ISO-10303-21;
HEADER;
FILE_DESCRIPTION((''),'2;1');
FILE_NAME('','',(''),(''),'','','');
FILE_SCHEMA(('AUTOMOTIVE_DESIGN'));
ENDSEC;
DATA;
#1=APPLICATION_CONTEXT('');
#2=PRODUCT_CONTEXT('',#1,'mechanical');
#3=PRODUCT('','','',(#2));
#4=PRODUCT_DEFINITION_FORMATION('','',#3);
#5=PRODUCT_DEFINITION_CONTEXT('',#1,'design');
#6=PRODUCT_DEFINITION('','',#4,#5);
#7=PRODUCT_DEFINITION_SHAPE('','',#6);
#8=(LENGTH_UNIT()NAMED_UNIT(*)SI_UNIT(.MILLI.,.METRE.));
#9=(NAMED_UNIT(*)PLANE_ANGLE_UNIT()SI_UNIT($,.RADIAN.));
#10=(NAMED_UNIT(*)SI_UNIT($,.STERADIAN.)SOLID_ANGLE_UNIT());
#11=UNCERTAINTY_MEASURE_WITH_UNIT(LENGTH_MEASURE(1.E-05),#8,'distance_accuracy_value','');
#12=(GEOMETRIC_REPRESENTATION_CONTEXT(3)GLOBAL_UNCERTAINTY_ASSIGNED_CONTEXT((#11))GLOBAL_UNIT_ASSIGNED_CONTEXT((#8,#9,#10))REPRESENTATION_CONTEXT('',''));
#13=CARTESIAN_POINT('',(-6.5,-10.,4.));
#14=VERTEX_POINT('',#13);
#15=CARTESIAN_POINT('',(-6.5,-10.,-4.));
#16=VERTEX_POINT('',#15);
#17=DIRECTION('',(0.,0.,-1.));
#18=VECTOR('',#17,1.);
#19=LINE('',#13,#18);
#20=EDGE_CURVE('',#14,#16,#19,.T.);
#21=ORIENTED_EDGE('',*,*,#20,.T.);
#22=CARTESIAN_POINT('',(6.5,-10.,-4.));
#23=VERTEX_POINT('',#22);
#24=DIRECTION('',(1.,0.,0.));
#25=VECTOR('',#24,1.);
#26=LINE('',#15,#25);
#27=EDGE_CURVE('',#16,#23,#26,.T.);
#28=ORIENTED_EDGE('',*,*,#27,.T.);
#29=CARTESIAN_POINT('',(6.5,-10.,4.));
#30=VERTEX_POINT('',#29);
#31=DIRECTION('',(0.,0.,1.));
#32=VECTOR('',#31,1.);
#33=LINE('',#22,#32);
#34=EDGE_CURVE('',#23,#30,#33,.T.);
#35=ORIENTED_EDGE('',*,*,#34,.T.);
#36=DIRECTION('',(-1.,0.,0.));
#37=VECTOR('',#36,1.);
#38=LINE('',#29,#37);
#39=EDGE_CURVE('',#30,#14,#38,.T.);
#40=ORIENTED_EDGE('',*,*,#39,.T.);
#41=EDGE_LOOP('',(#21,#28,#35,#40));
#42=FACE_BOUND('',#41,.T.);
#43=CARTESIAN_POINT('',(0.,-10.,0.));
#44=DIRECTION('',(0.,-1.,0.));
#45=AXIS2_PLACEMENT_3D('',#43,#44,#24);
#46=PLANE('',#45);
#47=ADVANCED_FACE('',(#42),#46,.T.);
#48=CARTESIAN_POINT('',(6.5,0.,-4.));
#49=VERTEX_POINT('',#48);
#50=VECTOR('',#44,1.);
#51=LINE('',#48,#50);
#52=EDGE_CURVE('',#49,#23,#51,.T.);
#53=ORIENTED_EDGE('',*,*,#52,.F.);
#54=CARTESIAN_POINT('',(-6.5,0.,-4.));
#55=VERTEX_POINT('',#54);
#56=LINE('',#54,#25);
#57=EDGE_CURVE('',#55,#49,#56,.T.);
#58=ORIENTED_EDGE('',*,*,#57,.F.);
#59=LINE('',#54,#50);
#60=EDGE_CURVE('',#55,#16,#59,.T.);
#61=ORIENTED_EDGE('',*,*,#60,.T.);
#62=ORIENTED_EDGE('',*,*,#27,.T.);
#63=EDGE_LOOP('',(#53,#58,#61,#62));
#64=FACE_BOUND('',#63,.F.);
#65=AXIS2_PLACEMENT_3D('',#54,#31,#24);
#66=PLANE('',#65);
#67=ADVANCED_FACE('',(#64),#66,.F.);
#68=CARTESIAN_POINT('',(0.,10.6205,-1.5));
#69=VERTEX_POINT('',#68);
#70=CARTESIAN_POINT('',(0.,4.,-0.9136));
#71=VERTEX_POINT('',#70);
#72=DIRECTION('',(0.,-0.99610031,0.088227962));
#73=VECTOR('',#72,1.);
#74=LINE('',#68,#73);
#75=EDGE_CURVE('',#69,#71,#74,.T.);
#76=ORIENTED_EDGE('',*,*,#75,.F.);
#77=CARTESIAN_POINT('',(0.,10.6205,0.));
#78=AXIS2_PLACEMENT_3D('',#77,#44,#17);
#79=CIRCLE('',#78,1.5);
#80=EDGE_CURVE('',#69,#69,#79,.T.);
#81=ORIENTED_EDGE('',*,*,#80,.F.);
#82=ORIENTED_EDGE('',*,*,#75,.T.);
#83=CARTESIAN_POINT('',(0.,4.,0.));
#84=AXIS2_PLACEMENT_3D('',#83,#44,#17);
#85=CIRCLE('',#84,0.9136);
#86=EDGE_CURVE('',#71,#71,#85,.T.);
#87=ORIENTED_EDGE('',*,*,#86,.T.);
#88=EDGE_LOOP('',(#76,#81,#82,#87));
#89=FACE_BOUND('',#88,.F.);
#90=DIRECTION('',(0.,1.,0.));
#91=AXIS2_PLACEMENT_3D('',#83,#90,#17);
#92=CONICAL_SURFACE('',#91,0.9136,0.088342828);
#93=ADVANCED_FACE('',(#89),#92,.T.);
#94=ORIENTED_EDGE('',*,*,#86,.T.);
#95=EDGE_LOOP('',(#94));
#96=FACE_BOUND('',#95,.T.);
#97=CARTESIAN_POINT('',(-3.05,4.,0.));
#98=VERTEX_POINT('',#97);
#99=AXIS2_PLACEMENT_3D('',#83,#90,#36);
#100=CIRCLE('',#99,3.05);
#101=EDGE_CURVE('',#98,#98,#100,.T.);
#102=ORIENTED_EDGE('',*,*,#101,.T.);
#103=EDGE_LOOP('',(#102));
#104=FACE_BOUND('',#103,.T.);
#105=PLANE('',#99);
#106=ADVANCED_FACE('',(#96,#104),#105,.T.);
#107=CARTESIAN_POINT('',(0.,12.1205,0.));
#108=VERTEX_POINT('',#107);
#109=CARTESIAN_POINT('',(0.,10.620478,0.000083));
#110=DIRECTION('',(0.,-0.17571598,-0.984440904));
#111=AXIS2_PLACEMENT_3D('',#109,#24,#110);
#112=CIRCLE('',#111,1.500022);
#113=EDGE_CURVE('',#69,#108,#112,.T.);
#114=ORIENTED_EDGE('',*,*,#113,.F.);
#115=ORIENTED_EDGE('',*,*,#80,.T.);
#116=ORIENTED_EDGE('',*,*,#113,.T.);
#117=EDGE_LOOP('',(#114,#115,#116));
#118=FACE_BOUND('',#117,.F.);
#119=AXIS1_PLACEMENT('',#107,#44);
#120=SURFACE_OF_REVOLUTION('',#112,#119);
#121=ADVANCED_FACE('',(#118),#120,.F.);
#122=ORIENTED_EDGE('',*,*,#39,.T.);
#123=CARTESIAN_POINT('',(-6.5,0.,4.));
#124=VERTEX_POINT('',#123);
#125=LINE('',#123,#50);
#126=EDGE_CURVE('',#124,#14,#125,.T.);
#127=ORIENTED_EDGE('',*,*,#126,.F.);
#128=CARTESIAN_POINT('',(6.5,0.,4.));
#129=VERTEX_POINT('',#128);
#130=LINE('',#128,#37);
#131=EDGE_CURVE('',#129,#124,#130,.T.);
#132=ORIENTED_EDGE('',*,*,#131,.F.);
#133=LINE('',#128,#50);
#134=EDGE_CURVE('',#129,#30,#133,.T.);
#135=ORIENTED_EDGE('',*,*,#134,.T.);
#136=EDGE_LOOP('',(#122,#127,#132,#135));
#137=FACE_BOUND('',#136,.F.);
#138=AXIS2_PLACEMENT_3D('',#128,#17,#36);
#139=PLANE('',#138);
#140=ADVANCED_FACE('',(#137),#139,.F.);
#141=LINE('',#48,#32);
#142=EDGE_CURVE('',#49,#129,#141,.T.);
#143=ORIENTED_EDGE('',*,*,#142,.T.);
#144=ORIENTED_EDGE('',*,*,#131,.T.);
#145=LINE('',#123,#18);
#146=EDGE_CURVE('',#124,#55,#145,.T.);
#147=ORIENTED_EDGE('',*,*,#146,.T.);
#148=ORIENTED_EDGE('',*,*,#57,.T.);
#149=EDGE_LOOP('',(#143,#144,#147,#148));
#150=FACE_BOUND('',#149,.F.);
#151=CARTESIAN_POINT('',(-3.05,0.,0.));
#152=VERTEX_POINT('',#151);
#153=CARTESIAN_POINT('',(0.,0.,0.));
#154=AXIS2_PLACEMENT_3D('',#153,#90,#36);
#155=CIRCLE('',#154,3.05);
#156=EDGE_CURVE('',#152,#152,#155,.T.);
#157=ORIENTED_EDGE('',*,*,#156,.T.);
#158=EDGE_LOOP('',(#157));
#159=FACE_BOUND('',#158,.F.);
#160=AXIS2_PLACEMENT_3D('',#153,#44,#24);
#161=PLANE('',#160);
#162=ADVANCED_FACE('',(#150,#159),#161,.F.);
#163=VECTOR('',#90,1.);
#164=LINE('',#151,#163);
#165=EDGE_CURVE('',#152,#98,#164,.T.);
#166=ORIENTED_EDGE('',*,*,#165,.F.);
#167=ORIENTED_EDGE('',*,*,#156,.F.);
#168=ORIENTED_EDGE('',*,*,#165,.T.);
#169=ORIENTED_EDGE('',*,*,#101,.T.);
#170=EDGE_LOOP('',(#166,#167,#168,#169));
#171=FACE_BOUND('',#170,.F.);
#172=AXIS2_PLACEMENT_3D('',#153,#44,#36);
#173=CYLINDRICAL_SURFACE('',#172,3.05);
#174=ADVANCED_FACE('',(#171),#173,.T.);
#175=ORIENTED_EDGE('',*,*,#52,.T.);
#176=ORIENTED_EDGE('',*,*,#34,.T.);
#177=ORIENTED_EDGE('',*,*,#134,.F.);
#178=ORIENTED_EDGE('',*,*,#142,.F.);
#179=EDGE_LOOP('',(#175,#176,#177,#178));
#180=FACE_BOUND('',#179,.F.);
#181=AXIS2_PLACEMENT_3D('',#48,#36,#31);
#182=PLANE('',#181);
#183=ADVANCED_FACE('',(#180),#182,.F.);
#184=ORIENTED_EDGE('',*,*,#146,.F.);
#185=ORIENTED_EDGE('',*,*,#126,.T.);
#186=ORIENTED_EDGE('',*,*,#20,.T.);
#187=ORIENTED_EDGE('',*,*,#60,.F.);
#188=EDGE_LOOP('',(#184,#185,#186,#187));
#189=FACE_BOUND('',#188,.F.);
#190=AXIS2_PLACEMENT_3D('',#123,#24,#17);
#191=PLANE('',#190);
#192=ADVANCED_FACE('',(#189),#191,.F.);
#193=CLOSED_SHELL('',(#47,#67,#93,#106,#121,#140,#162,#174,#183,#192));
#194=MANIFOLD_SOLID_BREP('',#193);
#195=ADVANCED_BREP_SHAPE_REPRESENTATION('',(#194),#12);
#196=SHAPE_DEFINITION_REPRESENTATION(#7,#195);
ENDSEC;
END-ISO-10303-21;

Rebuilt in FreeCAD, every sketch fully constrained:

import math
import FreeCAD as App
import Part
import Sketcher
from FreeCAD import Vector
Q = App.Units.Quantity

doc = App.newDocument("Part")
body = doc.addObject("PartDesign::Body", "Body")

sketch1 = doc.addObject("Sketcher::SketchObject", "Sketch")
body.addObject(sketch1)
sketch1.AttachmentSupport = (doc.XZ_Plane, [""])
sketch1.MapMode = "FlatFace"
sketch1.addGeometry(Part.Circle(Vector(0, 0, 0), Vector(0, 0, 1), 3), False)
sketch1.addConstraint([
    Sketcher.Constraint("Coincident", 0, 3, -1, 1),
    Sketcher.Constraint("Diameter", 0, Q("6.1 mm")),
])
pad1 = doc.addObject("PartDesign::Pad", "Pad")
body.addObject(pad1)
pad1.Profile = sketch1
pad1.Length = 4
pad1.Reversed = True

sketch2 = doc.addObject("Sketcher::SketchObject", "Sketch001")
body.addObject(sketch2)
sketch2.AttachmentSupport = (doc.YZ_Plane, [""])
sketch2.MapMode = "FlatFace"
sketch2.addGeometry([
    Part.ArcOfCircle(Part.Circle(Vector(10.6, 0, 0), Vector(0, 0, 1), 1.5), math.radians(-90), math.radians(0)),
    Part.LineSegment(Vector(12.1, 0, 0), Vector(4, 0, 0)),
    Part.LineSegment(Vector(4, 0, 0), Vector(4, -0.9, 0)),
    Part.LineSegment(Vector(4, -0.9, 0), Vector(10.6, -1.5, 0)),
], False)
sketch2.addConstraint([
    Sketcher.Constraint("Coincident", 0, 2, 1, 1),
    Sketcher.Constraint("Coincident", 1, 2, 2, 1),
    Sketcher.Constraint("Coincident", 2, 2, 3, 1),
    Sketcher.Constraint("Coincident", 3, 2, 0, 1),
    Sketcher.Constraint("Horizontal", 1),
    Sketcher.Constraint("Vertical", 2),
    Sketcher.Constraint("PointOnObject", 0, 3, -1),
    Sketcher.Constraint("PointOnObject", 0, 2, -1),
    Sketcher.Constraint("Vertical", 0, 3, 3, 2),
    Sketcher.Constraint("Radius", 0, Q("1.5 mm")),
    Sketcher.Constraint("DistanceX", -1, 1, 1, 2, Q("4 mm")),
    Sketcher.Constraint("DistanceX", 1, 2, 1, 1, Q("8.1205 mm")),
    Sketcher.Constraint("DistanceY", 2, 2, 2, 1, Q("0.9136 mm")),
])
revolution = doc.addObject("PartDesign::Revolution", "Revolution")
body.addObject(revolution)
revolution.Profile = sketch2
revolution.ReferenceAxis = (sketch2, ["H_Axis"])
revolution.Angle = 360

sketch3 = doc.addObject("Sketcher::SketchObject", "Sketch002")
body.addObject(sketch3)
sketch3.AttachmentSupport = (doc.XZ_Plane, [""])
sketch3.MapMode = "FlatFace"
sketch3.addGeometry([
    Part.LineSegment(Vector(6, -4, 0), Vector(6, 4, 0)),
    Part.LineSegment(Vector(6, 4, 0), Vector(-6, 4, 0)),
    Part.LineSegment(Vector(-6, 4, 0), Vector(-6, -4, 0)),
    Part.LineSegment(Vector(-6, -4, 0), Vector(6, -4, 0)),
], False)
sketch3.addConstraint([
    Sketcher.Constraint("Coincident", 0, 2, 1, 1),
    Sketcher.Constraint("Coincident", 1, 2, 2, 1),
    Sketcher.Constraint("Coincident", 2, 2, 3, 1),
    Sketcher.Constraint("Coincident", 3, 2, 0, 1),
    Sketcher.Constraint("Vertical", 0),
    Sketcher.Constraint("Horizontal", 1),
    Sketcher.Constraint("Vertical", 2),
    Sketcher.Constraint("Horizontal", 3),
    Sketcher.Constraint("Symmetric", 0, 2, 2, 2, -1, 1),
    Sketcher.Constraint("DistanceX", 1, 2, 1, 1, Q("13 mm")),
    Sketcher.Constraint("DistanceY", 0, 1, 0, 2, Q("8 mm")),
])
pad2 = doc.addObject("PartDesign::Pad", "Pad001")
body.addObject(pad2)
pad2.Profile = sketch3
pad2.Length = 10

doc.recompute()
